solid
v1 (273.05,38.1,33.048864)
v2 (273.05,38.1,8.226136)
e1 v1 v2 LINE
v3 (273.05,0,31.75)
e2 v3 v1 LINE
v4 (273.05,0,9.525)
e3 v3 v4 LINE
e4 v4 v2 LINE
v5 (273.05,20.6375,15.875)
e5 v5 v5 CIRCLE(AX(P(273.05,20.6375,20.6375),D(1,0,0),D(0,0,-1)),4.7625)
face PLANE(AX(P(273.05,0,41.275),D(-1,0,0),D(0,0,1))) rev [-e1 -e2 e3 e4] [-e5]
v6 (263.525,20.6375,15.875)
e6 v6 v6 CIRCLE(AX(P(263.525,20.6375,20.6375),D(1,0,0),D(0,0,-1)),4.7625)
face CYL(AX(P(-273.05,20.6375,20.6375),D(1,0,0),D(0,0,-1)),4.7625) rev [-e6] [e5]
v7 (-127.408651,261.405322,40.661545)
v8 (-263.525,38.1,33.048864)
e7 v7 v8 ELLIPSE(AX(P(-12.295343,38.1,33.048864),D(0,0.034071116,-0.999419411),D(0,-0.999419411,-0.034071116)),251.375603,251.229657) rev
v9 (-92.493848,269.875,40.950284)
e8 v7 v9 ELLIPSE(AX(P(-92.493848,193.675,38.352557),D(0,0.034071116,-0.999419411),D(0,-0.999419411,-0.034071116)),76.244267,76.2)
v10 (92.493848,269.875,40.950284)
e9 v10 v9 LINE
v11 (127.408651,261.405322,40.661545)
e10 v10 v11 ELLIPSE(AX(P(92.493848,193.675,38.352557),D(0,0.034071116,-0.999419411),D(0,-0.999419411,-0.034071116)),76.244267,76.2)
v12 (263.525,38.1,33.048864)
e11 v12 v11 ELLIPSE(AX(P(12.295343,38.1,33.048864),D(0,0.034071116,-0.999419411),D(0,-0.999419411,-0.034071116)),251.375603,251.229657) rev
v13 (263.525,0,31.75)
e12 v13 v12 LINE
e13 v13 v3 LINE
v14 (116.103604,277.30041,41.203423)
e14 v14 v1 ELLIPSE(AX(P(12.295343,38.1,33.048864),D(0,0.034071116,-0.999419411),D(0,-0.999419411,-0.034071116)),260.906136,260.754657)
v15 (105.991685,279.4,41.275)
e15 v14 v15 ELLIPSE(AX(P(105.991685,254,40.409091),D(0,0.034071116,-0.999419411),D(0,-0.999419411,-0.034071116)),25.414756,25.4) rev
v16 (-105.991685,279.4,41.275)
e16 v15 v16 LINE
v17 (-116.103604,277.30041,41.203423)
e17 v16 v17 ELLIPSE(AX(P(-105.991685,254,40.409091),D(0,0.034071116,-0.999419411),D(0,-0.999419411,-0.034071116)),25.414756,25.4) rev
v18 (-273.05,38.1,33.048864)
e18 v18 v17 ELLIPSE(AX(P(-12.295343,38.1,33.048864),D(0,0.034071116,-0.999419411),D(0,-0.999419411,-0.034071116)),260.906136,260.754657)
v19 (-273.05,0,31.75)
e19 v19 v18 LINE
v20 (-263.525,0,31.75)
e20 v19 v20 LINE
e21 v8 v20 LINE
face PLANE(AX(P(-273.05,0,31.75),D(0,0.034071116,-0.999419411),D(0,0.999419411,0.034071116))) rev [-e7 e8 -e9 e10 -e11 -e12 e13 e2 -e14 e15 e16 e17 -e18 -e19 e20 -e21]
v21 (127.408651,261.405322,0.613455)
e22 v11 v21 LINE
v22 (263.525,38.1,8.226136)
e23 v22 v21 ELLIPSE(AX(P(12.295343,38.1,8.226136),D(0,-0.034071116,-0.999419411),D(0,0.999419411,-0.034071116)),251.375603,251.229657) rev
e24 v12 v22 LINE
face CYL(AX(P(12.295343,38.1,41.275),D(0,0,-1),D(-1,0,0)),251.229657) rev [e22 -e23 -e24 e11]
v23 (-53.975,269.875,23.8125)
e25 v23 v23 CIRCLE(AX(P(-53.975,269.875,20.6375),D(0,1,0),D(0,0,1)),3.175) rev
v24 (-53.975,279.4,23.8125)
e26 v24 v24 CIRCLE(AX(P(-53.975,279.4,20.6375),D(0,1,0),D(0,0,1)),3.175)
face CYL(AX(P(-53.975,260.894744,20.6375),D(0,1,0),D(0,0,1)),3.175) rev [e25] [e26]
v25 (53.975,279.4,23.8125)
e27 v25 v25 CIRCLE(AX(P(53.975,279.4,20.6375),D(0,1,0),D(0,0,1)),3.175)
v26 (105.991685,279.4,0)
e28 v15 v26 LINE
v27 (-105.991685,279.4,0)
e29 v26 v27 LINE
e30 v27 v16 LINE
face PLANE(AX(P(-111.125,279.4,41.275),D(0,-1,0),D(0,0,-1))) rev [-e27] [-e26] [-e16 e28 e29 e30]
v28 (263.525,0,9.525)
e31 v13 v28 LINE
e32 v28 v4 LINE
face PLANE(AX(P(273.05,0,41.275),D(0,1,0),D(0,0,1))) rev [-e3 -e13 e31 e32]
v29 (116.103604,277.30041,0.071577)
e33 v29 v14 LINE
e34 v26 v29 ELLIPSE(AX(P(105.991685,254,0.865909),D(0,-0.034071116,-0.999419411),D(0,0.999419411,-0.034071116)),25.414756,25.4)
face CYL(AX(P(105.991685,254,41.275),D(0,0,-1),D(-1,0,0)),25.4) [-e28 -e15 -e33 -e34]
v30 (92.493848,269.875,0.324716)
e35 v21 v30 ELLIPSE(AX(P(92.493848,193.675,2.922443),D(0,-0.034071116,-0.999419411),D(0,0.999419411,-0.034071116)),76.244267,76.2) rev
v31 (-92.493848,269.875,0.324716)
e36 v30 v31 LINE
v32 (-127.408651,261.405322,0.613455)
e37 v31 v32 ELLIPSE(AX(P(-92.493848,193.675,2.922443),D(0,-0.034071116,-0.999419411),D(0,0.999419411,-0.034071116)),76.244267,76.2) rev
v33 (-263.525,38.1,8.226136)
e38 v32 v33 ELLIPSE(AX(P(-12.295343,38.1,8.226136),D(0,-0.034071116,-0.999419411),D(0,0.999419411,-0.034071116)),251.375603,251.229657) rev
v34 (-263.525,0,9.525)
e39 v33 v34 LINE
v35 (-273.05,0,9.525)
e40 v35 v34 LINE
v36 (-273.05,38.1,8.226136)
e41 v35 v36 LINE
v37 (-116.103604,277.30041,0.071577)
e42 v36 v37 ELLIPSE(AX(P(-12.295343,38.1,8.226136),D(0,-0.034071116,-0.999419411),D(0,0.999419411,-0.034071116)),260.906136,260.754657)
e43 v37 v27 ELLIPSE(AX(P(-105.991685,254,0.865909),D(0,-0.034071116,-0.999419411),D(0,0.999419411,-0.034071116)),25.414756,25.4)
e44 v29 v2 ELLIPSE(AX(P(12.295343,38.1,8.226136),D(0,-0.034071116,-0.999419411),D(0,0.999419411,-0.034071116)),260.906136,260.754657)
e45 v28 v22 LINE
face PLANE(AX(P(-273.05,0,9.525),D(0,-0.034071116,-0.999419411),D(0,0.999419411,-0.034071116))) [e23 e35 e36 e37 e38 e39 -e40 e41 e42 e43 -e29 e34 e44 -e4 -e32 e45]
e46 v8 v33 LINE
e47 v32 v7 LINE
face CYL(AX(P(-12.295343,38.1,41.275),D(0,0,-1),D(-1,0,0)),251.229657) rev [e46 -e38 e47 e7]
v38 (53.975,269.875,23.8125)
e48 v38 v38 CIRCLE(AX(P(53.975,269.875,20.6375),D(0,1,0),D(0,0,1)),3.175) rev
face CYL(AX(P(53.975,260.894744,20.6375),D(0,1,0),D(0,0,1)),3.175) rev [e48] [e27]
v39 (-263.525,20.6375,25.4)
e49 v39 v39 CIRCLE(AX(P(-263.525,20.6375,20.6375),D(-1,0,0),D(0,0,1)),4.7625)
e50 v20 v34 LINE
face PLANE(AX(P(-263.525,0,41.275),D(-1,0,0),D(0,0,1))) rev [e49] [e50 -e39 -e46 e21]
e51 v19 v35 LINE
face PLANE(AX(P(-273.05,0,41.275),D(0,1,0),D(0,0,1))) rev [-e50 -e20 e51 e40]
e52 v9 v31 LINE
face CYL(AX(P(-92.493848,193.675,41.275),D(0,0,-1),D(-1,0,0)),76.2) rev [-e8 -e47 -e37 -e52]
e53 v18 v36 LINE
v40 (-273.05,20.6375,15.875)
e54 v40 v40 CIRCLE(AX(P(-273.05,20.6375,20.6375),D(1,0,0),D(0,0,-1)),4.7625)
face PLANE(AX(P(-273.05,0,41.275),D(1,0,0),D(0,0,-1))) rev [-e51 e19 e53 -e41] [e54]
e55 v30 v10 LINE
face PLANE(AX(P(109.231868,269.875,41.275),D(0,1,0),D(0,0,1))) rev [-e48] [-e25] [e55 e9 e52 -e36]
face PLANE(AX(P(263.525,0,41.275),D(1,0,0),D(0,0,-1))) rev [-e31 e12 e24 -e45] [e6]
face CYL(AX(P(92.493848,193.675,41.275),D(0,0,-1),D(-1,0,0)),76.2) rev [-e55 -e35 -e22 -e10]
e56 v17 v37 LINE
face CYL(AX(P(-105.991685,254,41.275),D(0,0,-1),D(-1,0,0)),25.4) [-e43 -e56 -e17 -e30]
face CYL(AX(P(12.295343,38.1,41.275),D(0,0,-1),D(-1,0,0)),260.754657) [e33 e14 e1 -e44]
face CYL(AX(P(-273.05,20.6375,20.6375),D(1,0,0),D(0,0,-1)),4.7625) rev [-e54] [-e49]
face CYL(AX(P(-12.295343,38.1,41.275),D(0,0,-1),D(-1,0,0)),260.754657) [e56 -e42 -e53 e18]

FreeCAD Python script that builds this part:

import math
import FreeCAD as App
import Part
import Sketcher

V = App.Vector
Q = App.Units.Quantity


def edges_at(feature, points):
    """Names of the edges that pass closest to the given points."""
    edges = feature.Shape.Edges
    near = lambda p: min(range(len(edges)), key=lambda i: edges[i].distToShape(Part.Vertex(*p))[0])
    return sorted({f"Edge{near(p) + 1}" for p in points})


def add_polygon(sketch, points):
    """Adds a closed chain of lines whose ends are joined by coincident constraints."""
    first, n = sketch.GeometryCount, len(points)
    for a, b in zip(points, points[1:] + points[:1]):
        sketch.addGeometry(Part.LineSegment(App.Vector(*a, 0), App.Vector(*b, 0)), False)
    for i in range(n):
        sketch.addConstraint(Sketcher.Constraint("Coincident", first + i, 2, first + (i + 1) % n, 1))

doc = App.newDocument("Part")
body = doc.addObject("PartDesign::Body", "Body")

# Sketch on XY plane
sketch1 = body.newObject("Sketcher::SketchObject", "Sketch")
sketch1.AttachmentSupport = (doc.getObject("XY_Plane"), [""])
sketch1.MapMode = "FlatFace"
sketch1.addGeometry(Part.LineSegment(V(-273, 38, 0), V(-273, 0, 0)), False)
sketch1.addGeometry(Part.LineSegment(V(-273, 0, 0), V(-264, 0, 0)), False)
sketch1.addGeometry(Part.LineSegment(V(-264, 0, 0), V(-264, 38, 0)), False)
sketch1.addGeometry(Part.ArcOfCircle(Part.Circle(V(-12, 38, 0), V(0, 0, 1), 251), math.radians(113), math.radians(180)), False)
sketch1.addGeometry(Part.LineSegment(V(-109, 270, 0), V(109, 270, 0)), False)
sketch1.addGeometry(Part.ArcOfCircle(Part.Circle(V(12, 38, 0), V(0, 0, 1), 251), math.radians(0), math.radians(67)), False)
sketch1.addGeometry(Part.LineSegment(V(264, 38, 0), V(264, 0, 0)), False)
sketch1.addGeometry(Part.LineSegment(V(264, 0, 0), V(273, 0, 0)), False)
sketch1.addGeometry(Part.LineSegment(V(273, 0, 0), V(273, 38, 0)), False)
sketch1.addGeometry(Part.ArcOfCircle(Part.Circle(V(12, 38, 0), V(0, 0, 1), 261), math.radians(0), math.radians(68)), False)
sketch1.addGeometry(Part.LineSegment(V(111, 279, 0), V(-111, 279, 0)), False)
sketch1.addGeometry(Part.ArcOfCircle(Part.Circle(V(-12, 38, 0), V(0, 0, 1), 261), math.radians(112), math.radians(180)), False)
sketch1.addConstraint(Sketcher.Constraint("Coincident", 0, 2, 1, 1))
sketch1.addConstraint(Sketcher.Constraint("Coincident", 1, 2, 2, 1))
sketch1.addConstraint(Sketcher.Constraint("Tangent", 2, 2, 3, 2))
sketch1.addConstraint(Sketcher.Constraint("Coincident", 3, 1, 4, 1))
sketch1.addConstraint(Sketcher.Constraint("Coincident", 4, 2, 5, 2))
sketch1.addConstraint(Sketcher.Constraint("Tangent", 5, 1, 6, 1))
sketch1.addConstraint(Sketcher.Constraint("Coincident", 6, 2, 7, 1))
sketch1.addConstraint(Sketcher.Constraint("Coincident", 7, 2, 8, 1))
sketch1.addConstraint(Sketcher.Constraint("Tangent", 8, 2, 9, 1))
sketch1.addConstraint(Sketcher.Constraint("Coincident", 9, 2, 10, 1))
sketch1.addConstraint(Sketcher.Constraint("Coincident", 10, 2, 11, 1))
sketch1.addConstraint(Sketcher.Constraint("Tangent", 11, 2, 0, 1))
sketch1.addConstraint(Sketcher.Constraint("Vertical", 0))
sketch1.addConstraint(Sketcher.Constraint("Horizontal", 1))
sketch1.addConstraint(Sketcher.Constraint("Vertical", 2))
sketch1.addConstraint(Sketcher.Constraint("Horizontal", 4))
sketch1.addConstraint(Sketcher.Constraint("Vertical", 6))
sketch1.addConstraint(Sketcher.Constraint("Horizontal", 7))
sketch1.addConstraint(Sketcher.Constraint("Vertical", 8))
sketch1.addConstraint(Sketcher.Constraint("Horizontal", 10))
sketch1.addConstraint(Sketcher.Constraint("Coincident", 9, 3, 5, 3))
sketch1.addConstraint(Sketcher.Constraint("Coincident", 11, 3, 3, 3))
sketch1.addConstraint(Sketcher.Constraint("Equal", 3, 5))
sketch1.addConstraint(Sketcher.Constraint("Equal", 9, 11))
sketch1.addConstraint(Sketcher.Constraint("Symmetric", 1, 2, 6, 2, -1, 1))
sketch1.addConstraint(Sketcher.Constraint("PointOnObject", 0, 2, -1))
sketch1.addConstraint(Sketcher.Constraint("Horizontal", 3, 3, 5, 3))
sketch1.addConstraint(Sketcher.Constraint("DistanceY", 0, 2, 0, 1, Q("1.5 in")))
sketch1.addConstraint(Sketcher.Constraint("DistanceY", -1, 1, 9, 2, Q("11 in")))
sketch1.addConstraint(Sketcher.Constraint("DistanceX", 10, 2, 10, 1, Q("8.75 in")))
sketch1.addConstraint(Sketcher.Constraint("DistanceX", 1, 1, 1, 2, Q("0.375 in")))
sketch1.addConstraint(Sketcher.Constraint("DistanceX", 0, 2, -1, 1, Q("10.75 in")))
sketch1.addConstraint(Sketcher.Constraint("DistanceY", -1, 1, 3, 1, Q("10.625 in")))
pad1 = body.newObject("PartDesign::Pad", "Pad")
pad1.Profile = sketch1
pad1.Length = Q("1.625 in")

# Sketch on YZ plane
sketch2 = body.newObject("Sketcher::SketchObject", "Sketch001")
sketch2.AttachmentSupport = (doc.getObject("YZ_Plane"), [""])
sketch2.MapMode = "FlatFace"
sketch2.AttachmentOffset = App.Placement(V(0, 0, 10.75 * 25.4), App.Rotation())
sketch2.addGeometry(Part.Circle(V(20.6, 20.6, 0), V(0, 0, 1), 4.8), False)  # 0
add_polygon(sketch2, [(0, 9.5), (0, 0), (279.4, 0)])  # lines 1-3
add_polygon(sketch2, [(0, 31.8), (279.4, 41.3), (0, 41.3)])  # lines 4-6
sketch2.addConstraint(Sketcher.Constraint("Vertical", 1))
sketch2.addConstraint(Sketcher.Constraint("Horizontal", 2))
sketch2.addConstraint(Sketcher.Constraint("Horizontal", 5))
sketch2.addConstraint(Sketcher.Constraint("Vertical", 6))
sketch2.addConstraint(Sketcher.Constraint("Coincident", 1, 2, -1, 1))
sketch2.addConstraint(Sketcher.Constraint("PointOnObject", 5, 2, -2))
sketch2.addConstraint(Sketcher.Constraint("Vertical", 2, 2, 4, 2))
sketch2.addConstraint(Sketcher.Constraint("Equal", 1, 6))
sketch2.addConstraint(Sketcher.Constraint("DistanceX", 2, 1, 2, 2, Q("11 in")))
sketch2.addConstraint(Sketcher.Constraint("Diameter", 0, Q("0.375 in")))
sketch2.addConstraint(Sketcher.Constraint("DistanceY", 1, 2, 1, 1, Q("0.375 in")))
sketch2.addConstraint(Sketcher.Constraint("DistanceY", -1, 1, 6, 2, Q("1.25 in")))
sketch2.addConstraint(Sketcher.Constraint("DistanceX", -1, 1, 0, 3, Q("0.8125 in")))
sketch2.addConstraint(Sketcher.Constraint("DistanceY", -1, 1, 0, 3, Q("0.8125 in")))
pocket1 = body.newObject("PartDesign::Pocket", "Pocket")
pocket1.Profile = sketch2
pocket1.Type = "ThroughAll"
doc.recompute()

fillet = body.newObject("PartDesign::Fillet", "Fillet")
fillet.Base = (pocket1, edges_at(pocket1, [(109.232, 269.875, 20.637), (-109.232, 269.875, 20.637)]))
fillet.Radius = Q("3 in")
doc.recompute()

fillet2 = body.newObject("PartDesign::Fillet", "Fillet001")
fillet2.Base = (fillet, edges_at(fillet, [(111.125, 279.4, 20.637), (-111.125, 279.4, 20.637)]))
fillet2.Radius = Q("1 in")

# Sketch on XZ plane
sketch3 = body.newObject("Sketcher::SketchObject", "Sketch002")
sketch3.AttachmentSupport = (doc.getObject("XZ_Plane"), [""])
sketch3.MapMode = "FlatFace"
sketch3.AttachmentOffset = App.Placement(V(0, 0, -11 * 25.4), App.Rotation())
sketch3.addGeometry(Part.Circle(V(-54, 20.6, 0), V(0, 0, 1), 3.2), False)
sketch3.addGeometry(Part.Circle(V(54, 20.6, 0), V(0, 0, 1), 3.2), False)
sketch3.addConstraint(Sketcher.Constraint("Equal", 0, 1))
sketch3.addConstraint(Sketcher.Constraint("Symmetric", 0, 3, 1, 3, -2))
sketch3.addConstraint(Sketcher.Constraint("Diameter", 0, Q("0.25 in")))
sketch3.addConstraint(Sketcher.Constraint("DistanceX", 0, 3, 1, 3, Q("4.25 in")))
sketch3.addConstraint(Sketcher.Constraint("DistanceY", -1, 1, 0, 3, Q("0.8125 in")))
pocket2 = body.newObject("PartDesign::Pocket", "Pocket001")
pocket2.Profile = sketch3
pocket2.Length = Q("0.375 in")
pocket2.Reversed = True

doc.recompute()
